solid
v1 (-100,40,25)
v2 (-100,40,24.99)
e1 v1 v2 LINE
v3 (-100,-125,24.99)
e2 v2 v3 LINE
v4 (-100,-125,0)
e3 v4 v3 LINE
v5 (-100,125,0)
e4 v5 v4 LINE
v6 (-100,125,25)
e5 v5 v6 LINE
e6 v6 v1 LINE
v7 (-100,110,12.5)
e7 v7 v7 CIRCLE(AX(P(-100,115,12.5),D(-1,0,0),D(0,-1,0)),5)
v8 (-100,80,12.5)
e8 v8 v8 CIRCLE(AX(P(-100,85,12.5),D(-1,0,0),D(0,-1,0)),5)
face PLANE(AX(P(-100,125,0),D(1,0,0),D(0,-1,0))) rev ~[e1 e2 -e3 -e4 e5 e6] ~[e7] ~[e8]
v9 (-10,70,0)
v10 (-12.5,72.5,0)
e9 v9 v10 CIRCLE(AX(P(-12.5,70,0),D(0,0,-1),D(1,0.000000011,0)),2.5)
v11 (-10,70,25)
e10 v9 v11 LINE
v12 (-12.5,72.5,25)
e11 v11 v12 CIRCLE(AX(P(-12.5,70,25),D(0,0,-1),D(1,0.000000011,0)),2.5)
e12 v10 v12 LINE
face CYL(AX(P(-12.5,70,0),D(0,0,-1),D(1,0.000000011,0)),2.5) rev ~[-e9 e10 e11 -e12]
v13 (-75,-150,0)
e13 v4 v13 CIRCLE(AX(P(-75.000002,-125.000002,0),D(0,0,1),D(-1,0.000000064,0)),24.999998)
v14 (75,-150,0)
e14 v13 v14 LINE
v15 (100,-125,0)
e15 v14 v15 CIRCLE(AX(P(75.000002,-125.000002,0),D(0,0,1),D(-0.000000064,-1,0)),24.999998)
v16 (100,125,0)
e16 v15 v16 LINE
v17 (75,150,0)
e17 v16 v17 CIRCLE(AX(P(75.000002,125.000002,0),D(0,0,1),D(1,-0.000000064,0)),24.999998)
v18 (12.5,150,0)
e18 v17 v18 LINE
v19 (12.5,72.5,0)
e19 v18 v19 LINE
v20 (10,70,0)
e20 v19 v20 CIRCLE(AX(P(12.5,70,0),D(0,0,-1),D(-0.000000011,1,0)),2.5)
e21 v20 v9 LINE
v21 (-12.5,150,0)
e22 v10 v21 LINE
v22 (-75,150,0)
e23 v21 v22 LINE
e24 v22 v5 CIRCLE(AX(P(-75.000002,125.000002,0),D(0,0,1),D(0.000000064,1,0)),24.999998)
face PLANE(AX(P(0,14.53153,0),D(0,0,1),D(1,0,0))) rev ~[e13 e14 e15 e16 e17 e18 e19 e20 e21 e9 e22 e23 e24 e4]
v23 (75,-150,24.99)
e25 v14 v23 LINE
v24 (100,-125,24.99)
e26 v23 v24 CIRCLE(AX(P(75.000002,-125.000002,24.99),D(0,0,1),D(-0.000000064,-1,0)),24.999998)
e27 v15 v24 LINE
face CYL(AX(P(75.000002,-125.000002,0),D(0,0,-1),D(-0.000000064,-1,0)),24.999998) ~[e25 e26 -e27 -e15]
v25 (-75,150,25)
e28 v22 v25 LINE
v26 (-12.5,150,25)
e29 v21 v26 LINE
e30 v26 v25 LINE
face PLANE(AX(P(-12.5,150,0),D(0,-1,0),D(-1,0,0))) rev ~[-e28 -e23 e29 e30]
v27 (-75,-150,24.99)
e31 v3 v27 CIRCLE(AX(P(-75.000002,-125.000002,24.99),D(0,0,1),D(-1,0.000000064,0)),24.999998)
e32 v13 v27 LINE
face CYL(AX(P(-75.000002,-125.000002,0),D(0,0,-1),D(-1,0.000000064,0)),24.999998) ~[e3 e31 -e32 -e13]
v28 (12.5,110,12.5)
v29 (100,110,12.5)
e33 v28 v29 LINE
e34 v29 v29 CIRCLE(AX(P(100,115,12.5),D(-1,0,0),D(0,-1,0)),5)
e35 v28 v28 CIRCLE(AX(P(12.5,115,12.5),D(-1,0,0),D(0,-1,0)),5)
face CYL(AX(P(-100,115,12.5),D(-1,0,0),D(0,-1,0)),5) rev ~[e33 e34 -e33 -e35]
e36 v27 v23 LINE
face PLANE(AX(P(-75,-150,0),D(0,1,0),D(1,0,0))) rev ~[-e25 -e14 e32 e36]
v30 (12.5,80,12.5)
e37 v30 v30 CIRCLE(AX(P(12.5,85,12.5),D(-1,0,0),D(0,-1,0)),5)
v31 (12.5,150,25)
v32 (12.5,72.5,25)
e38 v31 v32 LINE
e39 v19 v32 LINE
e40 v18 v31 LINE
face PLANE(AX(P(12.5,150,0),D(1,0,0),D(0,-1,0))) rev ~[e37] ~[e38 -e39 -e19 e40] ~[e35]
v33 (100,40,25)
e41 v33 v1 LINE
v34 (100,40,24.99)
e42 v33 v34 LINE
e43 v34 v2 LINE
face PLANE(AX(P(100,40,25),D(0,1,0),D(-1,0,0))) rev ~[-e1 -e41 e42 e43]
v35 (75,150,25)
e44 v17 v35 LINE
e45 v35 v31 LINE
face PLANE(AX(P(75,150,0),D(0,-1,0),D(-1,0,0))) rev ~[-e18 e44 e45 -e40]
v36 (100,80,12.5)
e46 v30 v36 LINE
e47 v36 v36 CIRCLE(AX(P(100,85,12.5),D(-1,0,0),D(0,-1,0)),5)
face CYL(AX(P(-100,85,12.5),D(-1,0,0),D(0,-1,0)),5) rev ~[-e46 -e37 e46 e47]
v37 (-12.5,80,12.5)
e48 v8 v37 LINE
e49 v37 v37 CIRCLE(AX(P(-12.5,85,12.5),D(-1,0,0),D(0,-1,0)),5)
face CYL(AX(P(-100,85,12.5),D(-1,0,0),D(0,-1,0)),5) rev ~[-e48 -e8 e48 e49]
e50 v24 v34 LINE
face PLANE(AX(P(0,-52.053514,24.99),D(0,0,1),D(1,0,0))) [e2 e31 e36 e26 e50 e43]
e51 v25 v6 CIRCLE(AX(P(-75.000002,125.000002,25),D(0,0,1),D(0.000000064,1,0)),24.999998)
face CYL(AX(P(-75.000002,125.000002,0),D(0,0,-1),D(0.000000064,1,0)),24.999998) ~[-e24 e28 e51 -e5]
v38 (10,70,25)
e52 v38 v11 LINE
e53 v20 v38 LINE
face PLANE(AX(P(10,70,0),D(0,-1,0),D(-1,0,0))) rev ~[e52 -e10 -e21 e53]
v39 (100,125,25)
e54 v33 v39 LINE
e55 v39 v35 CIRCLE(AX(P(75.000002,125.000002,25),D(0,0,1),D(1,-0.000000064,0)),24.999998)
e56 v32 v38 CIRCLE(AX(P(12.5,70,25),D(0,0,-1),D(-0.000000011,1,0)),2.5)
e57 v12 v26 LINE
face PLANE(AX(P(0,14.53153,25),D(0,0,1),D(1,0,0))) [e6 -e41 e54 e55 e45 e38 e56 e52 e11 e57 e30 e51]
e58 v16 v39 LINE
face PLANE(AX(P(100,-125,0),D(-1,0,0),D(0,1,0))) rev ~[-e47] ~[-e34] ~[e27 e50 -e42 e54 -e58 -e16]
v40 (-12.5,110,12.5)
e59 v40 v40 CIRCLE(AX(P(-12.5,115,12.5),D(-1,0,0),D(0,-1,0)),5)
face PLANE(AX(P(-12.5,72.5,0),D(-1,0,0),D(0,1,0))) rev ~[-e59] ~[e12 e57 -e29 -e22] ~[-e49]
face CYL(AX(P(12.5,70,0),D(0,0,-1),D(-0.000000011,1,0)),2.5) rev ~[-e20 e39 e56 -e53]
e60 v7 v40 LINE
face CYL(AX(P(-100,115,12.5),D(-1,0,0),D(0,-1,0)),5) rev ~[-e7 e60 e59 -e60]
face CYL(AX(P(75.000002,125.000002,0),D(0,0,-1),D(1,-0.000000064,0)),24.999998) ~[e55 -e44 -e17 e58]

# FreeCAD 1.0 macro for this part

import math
import FreeCAD as App
import Part
import Sketcher
from FreeCAD import Vector
Q = App.Units.Quantity

doc = App.newDocument("Part")
body = doc.addObject("PartDesign::Body", "Body")

# Sketch on XY plane
sketch1 = body.newObject("Sketcher::SketchObject", "Sketch")
sketch1.AttachmentSupport = (doc.getObject("XY_Plane"), [""])
sketch1.MapMode = "FlatFace"
sketch1.addGeometry(Part.LineSegment(Vector(-12.5, 150, 0), Vector(-75, 150, 0)), False)
sketch1.addGeometry(Part.ArcOfCircle(Part.Circle(Vector(-75, 125, 0), Vector(0, 0, 1), 25), math.radians(90), math.radians(180)), False)
sketch1.addGeometry(Part.LineSegment(Vector(-100, 125, 0), Vector(-100, -125, 0)), False)
sketch1.addGeometry(Part.ArcOfCircle(Part.Circle(Vector(-75, -125, 0), Vector(0, 0, 1), 25), math.radians(180), math.radians(270)), False)
sketch1.addGeometry(Part.LineSegment(Vector(-75, -150, 0), Vector(75, -150, 0)), False)
sketch1.addGeometry(Part.ArcOfCircle(Part.Circle(Vector(75, -125, 0), Vector(0, 0, 1), 25), math.radians(-90), math.radians(0)), False)
sketch1.addGeometry(Part.LineSegment(Vector(100, -125, 0), Vector(100, 125, 0)), False)
sketch1.addGeometry(Part.ArcOfCircle(Part.Circle(Vector(75, 125, 0), Vector(0, 0, 1), 25), math.radians(0), math.radians(90)), False)
sketch1.addGeometry(Part.LineSegment(Vector(75, 150, 0), Vector(12.5, 150, 0)), False)
sketch1.addGeometry(Part.LineSegment(Vector(12.5, 150, 0), Vector(12.5, 72.5, 0)), False)
sketch1.addGeometry(Part.ArcOfCircle(Part.Circle(Vector(12.5, 70, 0), Vector(0, 0, 1), 2.5), math.radians(180), math.radians(450)), False)
sketch1.addGeometry(Part.LineSegment(Vector(10, 70, 0), Vector(-10, 70, 0)), False)
sketch1.addGeometry(Part.ArcOfCircle(Part.Circle(Vector(-12.5, 70, 0), Vector(0, 0, 1), 2.5), math.radians(90), math.radians(360)), False)
sketch1.addGeometry(Part.LineSegment(Vector(-12.5, 72.5, 0), Vector(-12.5, 150, 0)), False)
sketch1.addConstraint(Sketcher.Constraint("Tangent", 0, 2, 1, 1))
sketch1.addConstraint(Sketcher.Constraint("Tangent", 1, 2, 2, 1))
sketch1.addConstraint(Sketcher.Constraint("Tangent", 2, 2, 3, 1))
sketch1.addConstraint(Sketcher.Constraint("Tangent", 3, 2, 4, 1))
sketch1.addConstraint(Sketcher.Constraint("Tangent", 4, 2, 5, 1))
sketch1.addConstraint(Sketcher.Constraint("Tangent", 5, 2, 6, 1))
sketch1.addConstraint(Sketcher.Constraint("Tangent", 6, 2, 7, 1))
sketch1.addConstraint(Sketcher.Constraint("Tangent", 7, 2, 8, 1))
sketch1.addConstraint(Sketcher.Constraint("Coincident", 8, 2, 9, 1))
sketch1.addConstraint(Sketcher.Constraint("Coincident", 9, 2, 10, 2))
sketch1.addConstraint(Sketcher.Constraint("Coincident", 10, 1, 11, 1))
sketch1.addConstraint(Sketcher.Constraint("Coincident", 11, 2, 12, 2))
sketch1.addConstraint(Sketcher.Constraint("Coincident", 12, 1, 13, 1))
sketch1.addConstraint(Sketcher.Constraint("Coincident", 13, 2, 0, 1))
sketch1.addConstraint(Sketcher.Constraint("Horizontal", 0))
sketch1.addConstraint(Sketcher.Constraint("Vertical", 2))
sketch1.addConstraint(Sketcher.Constraint("Horizontal", 4))
sketch1.addConstraint(Sketcher.Constraint("Vertical", 6))
sketch1.addConstraint(Sketcher.Constraint("Horizontal", 8))
sketch1.addConstraint(Sketcher.Constraint("Vertical", 9))
sketch1.addConstraint(Sketcher.Constraint("Horizontal", 11))
sketch1.addConstraint(Sketcher.Constraint("Vertical", 13))
sketch1.addConstraint(Sketcher.Constraint("Equal", 1, 3))
sketch1.addConstraint(Sketcher.Constraint("Equal", 3, 5))
sketch1.addConstraint(Sketcher.Constraint("Equal", 5, 7))
sketch1.addConstraint(Sketcher.Constraint("Equal", 10, 12))
sketch1.addConstraint(Sketcher.Constraint("Symmetric", 1, 3, 5, 3, -1, 1))
sketch1.addConstraint(Sketcher.Constraint("Symmetric", 10, 3, 12, 3, -2))
sketch1.addConstraint(Sketcher.Constraint("Symmetric", 8, 2, 13, 2, -2))
sketch1.addConstraint(Sketcher.Constraint("Horizontal", 12, 3, 10, 1))
sketch1.addConstraint(Sketcher.Constraint("Vertical", 10, 3, 8, 2))
sketch1.addConstraint(Sketcher.Constraint("Radius", 1, Q("24.999998 mm")))
sketch1.addConstraint(Sketcher.Constraint("Radius", 10, Q("2.5 mm")))
sketch1.addConstraint(Sketcher.Constraint("DistanceX", 4, 1, 4, 2, Q("150 mm")))
sketch1.addConstraint(Sketcher.Constraint("DistanceX", 11, 2, 11, 1, Q("20 mm")))
sketch1.addConstraint(Sketcher.Constraint("DistanceY", 2, 2, 2, 1, Q("250 mm")))
sketch1.addConstraint(Sketcher.Constraint("DistanceY", 9, 2, 9, 1, Q("77.5 mm")))
pad1 = body.newObject("PartDesign::Pad", "Pad")
pad1.Profile = sketch1
pad1.Length = 25

# Sketch on YZ plane
sketch2 = body.newObject("Sketcher::SketchObject", "Sketch001")
sketch2.AttachmentSupport = (doc.getObject("YZ_Plane"), [""])
sketch2.MapMode = "FlatFace"
sketch2.AttachmentOffset = App.Placement(Vector(0, 0, -100), App.Rotation())
sketch2.addGeometry(Part.Circle(Vector(115, 12, 0), Vector(0, 0, 1), 5), False)
sketch2.addGeometry(Part.Circle(Vector(85, 12, 0), Vector(0, 0, 1), 5), False)
sketch2.addConstraint(Sketcher.Constraint("Equal", 0, 1))
sketch2.addConstraint(Sketcher.Constraint("Horizontal", 0, 3, 1, 3))
sketch2.addConstraint(Sketcher.Constraint("Diameter", 0, Q("10 mm")))
sketch2.addConstraint(Sketcher.Constraint("DistanceX", -1, 1, 0, 3, Q("115 mm")))
sketch2.addConstraint(Sketcher.Constraint("DistanceX", -1, 1, 1, 3, Q("85 mm")))
sketch2.addConstraint(Sketcher.Constraint("DistanceY", -1, 1, 0, 3, Q("12.5 mm")))
pocket1 = body.newObject("PartDesign::Pocket", "Pocket")
pocket1.Profile = sketch2
pocket1.Type = "ThroughAll"
pocket1.Reversed = True

# Sketch on XY plane
sketch3 = body.newObject("Sketcher::SketchObject", "Sketch002")
sketch3.AttachmentSupport = (doc.getObject("XY_Plane"), [""])
sketch3.MapMode = "FlatFace"
sketch3.AttachmentOffset = App.Placement(Vector(0, 0, 25), App.Rotation())
sketch3.addGeometry(Part.ArcOfCircle(Part.Circle(Vector(-75, -125, 0), Vector(0, 0, 1), 25), math.radians(180), math.radians(270)), False)
sketch3.addGeometry(Part.LineSegment(Vector(-75, -150, 0), Vector(75, -150, 0)), False)
sketch3.addGeometry(Part.ArcOfCircle(Part.Circle(Vector(75, -125, 0), Vector(0, 0, 1), 25), math.radians(-90), math.radians(0)), False)
sketch3.addGeometry(Part.LineSegment(Vector(100, -125, 0), Vector(100, 40, 0)), False)
sketch3.addGeometry(Part.LineSegment(Vector(100, 40, 0), Vector(-100, 40, 0)), False)
sketch3.addGeometry(Part.LineSegment(Vector(-100, 40, 0), Vector(-100, -125, 0)), False)
sketch3.addConstraint(Sketcher.Constraint("Tangent", 0, 2, 1, 1))
sketch3.addConstraint(Sketcher.Constraint("Tangent", 1, 2, 2, 1))
sketch3.addConstraint(Sketcher.Constraint("Tangent", 2, 2, 3, 1))
sketch3.addConstraint(Sketcher.Constraint("Coincident", 3, 2, 4, 1))
sketch3.addConstraint(Sketcher.Constraint("Coincident", 4, 2, 5, 1))
sketch3.addConstraint(Sketcher.Constraint("Tangent", 5, 2, 0, 1))
sketch3.addConstraint(Sketcher.Constraint("Horizontal", 1))
sketch3.addConstraint(Sketcher.Constraint("Vertical", 3))
sketch3.addConstraint(Sketcher.Constraint("Horizontal", 4))
sketch3.addConstraint(Sketcher.Constraint("Vertical", 5))
sketch3.addConstraint(Sketcher.Constraint("Equal", 0, 2))
sketch3.addConstraint(Sketcher.Constraint("Radius", 0, Q("24.999998 mm")))
sketch3.addConstraint(Sketcher.Constraint("DistanceX", 1, 1, 1, 2, Q("150 mm")))
sketch3.addConstraint(Sketcher.Constraint("DistanceY", 3, 1, 3, 2, Q("165 mm")))
sketch3.addConstraint(Sketcher.Constraint("DistanceX", 0, 3, -1, 1, Q("75.000002 mm")))
sketch3.addConstraint(Sketcher.Constraint("DistanceY", 0, 3, -1, 1, Q("125.000002 mm")))
pocket2 = body.newObject("PartDesign::Pocket", "Pocket001")
pocket2.Profile = sketch3
pocket2.Length = 0.01

doc.recompute()
